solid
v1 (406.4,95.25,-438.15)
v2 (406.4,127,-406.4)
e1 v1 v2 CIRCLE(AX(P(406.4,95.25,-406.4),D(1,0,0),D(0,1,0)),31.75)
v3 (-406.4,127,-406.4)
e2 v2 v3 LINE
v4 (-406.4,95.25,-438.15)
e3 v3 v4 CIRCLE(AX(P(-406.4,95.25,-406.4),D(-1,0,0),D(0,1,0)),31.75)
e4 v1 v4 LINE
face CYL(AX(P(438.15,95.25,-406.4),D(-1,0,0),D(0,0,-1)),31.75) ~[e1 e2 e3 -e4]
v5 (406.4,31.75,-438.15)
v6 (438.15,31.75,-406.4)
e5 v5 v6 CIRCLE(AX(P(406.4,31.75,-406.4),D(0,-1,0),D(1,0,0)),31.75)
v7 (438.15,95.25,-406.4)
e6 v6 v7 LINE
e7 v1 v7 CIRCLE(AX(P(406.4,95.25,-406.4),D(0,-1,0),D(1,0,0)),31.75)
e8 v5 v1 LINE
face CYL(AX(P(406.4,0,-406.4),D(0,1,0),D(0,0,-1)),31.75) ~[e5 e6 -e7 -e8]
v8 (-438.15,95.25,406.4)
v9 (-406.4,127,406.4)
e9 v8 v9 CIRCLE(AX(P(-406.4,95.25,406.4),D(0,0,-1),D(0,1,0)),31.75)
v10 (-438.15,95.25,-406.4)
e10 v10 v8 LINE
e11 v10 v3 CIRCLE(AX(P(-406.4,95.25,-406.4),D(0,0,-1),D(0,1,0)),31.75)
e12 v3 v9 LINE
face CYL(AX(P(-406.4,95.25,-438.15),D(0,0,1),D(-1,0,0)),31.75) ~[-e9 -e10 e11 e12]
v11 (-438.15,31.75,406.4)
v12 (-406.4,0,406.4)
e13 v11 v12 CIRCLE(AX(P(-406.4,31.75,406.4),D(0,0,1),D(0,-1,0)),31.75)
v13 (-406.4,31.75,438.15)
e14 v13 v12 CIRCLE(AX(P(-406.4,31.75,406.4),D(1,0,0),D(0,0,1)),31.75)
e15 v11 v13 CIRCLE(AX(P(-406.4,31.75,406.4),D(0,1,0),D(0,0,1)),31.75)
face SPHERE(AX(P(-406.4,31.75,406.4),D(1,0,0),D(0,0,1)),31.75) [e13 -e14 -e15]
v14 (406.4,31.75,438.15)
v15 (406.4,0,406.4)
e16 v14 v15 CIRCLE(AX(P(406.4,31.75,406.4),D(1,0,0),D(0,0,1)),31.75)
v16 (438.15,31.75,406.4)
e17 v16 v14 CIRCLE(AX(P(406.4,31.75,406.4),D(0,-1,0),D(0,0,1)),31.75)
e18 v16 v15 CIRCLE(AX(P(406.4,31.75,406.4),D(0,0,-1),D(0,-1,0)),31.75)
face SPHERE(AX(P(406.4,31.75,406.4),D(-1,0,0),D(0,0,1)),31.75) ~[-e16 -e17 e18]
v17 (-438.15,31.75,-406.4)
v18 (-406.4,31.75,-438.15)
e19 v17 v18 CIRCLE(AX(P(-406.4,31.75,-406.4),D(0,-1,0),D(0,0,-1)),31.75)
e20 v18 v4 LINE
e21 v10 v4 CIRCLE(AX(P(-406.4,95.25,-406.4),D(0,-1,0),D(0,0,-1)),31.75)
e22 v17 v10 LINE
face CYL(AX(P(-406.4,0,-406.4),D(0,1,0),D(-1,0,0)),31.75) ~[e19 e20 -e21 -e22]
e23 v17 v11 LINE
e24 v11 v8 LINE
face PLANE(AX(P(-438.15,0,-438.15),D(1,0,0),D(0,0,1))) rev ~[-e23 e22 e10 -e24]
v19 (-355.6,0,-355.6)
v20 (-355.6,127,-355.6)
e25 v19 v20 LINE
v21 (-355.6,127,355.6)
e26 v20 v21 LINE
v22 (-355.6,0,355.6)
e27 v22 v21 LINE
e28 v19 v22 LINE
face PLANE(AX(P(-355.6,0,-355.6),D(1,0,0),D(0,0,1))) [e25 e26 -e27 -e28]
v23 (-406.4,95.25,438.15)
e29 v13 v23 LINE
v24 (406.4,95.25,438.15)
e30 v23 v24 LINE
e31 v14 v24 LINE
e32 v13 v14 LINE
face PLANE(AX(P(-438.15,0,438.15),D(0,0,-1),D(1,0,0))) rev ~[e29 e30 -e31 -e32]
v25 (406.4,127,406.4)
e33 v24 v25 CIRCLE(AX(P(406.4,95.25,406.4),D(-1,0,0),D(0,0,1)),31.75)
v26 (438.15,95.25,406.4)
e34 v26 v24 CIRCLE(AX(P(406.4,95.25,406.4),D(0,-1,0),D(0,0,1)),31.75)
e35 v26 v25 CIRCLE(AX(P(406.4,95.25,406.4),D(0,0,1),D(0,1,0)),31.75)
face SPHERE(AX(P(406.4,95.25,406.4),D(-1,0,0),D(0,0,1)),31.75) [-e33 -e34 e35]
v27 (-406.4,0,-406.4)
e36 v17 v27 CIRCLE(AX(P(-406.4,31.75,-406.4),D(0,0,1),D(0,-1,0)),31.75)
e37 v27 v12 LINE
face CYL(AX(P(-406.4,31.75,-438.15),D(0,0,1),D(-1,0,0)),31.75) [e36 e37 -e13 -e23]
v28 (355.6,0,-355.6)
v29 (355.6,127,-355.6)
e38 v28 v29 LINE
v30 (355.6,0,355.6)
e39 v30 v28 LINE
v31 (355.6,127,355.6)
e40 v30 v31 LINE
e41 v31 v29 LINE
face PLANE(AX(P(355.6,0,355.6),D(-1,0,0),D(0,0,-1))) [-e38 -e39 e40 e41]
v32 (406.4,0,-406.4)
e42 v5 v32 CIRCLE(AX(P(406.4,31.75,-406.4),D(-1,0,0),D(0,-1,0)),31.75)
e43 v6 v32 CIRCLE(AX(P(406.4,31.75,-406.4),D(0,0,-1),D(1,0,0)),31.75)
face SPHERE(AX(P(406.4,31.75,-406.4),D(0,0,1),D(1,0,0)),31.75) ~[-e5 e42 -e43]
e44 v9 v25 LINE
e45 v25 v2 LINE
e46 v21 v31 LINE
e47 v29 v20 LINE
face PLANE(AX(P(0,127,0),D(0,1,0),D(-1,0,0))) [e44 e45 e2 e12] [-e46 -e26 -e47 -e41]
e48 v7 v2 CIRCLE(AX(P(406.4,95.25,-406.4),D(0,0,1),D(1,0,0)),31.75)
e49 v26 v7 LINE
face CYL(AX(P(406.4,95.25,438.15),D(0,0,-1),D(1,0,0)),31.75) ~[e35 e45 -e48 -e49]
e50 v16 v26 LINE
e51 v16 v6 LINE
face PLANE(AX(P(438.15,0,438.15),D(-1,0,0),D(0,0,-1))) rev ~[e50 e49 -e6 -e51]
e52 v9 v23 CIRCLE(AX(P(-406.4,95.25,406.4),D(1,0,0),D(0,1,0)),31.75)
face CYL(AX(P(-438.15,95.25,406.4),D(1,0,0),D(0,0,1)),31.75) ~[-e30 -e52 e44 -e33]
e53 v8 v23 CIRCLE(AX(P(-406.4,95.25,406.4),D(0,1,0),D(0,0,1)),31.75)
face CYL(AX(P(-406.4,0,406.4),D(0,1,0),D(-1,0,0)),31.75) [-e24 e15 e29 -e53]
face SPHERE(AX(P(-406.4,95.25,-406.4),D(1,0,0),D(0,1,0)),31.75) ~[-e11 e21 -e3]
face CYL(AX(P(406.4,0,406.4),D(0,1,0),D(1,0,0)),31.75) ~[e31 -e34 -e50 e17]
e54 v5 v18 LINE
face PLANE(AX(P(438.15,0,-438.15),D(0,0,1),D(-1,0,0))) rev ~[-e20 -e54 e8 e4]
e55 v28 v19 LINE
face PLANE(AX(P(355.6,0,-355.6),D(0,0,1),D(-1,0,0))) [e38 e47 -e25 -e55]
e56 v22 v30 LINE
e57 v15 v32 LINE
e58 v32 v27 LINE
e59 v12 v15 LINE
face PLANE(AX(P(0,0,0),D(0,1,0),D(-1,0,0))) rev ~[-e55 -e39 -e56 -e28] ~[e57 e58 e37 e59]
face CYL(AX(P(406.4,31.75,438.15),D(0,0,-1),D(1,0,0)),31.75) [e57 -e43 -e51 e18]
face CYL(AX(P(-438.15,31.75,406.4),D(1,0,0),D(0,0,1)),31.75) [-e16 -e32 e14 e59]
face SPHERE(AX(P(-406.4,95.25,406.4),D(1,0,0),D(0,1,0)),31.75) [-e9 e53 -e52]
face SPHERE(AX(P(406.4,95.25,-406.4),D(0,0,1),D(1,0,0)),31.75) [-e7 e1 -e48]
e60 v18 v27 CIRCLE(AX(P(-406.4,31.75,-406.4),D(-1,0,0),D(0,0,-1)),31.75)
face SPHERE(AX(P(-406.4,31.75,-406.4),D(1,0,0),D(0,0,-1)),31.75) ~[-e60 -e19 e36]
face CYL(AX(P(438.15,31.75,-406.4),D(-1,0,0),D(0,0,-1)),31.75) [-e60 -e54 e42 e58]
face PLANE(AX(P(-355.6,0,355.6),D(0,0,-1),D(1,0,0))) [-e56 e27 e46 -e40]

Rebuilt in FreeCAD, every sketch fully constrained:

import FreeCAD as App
import Part
import Sketcher

V = App.Vector
Q = App.Units.Quantity


def edges_at(feature, points):
    """Names of the edges that pass closest to the given points."""
    edges = feature.Shape.Edges
    near = lambda p: min(range(len(edges)), key=lambda i: edges[i].distToShape(Part.Vertex(*p))[0])
    return sorted({f"Edge{near(p) + 1}" for p in points})

doc = App.newDocument("Part")
params = doc.addObject("Spreadsheet::Sheet", "Params")
for row, (alias, value) in enumerate([
    ("sketch1_width", "28 in"),
    ("pad1_length", "5 in"),
    ("fillet_radius", "1.25 in"),
], start=1):
    params.set(f"A{row}", alias)
    params.set(f"B{row}", "=" + value)
    params.setAlias(f"B{row}", alias)

body = doc.addObject("PartDesign::Body", "Body")

# Sketch on XZ plane
sketch1 = body.newObject("Sketcher::SketchObject", "Sketch")
sketch1.AttachmentSupport = (doc.getObject("XZ_Plane"), [""])
sketch1.MapMode = "FlatFace"
sketch1.addGeometry(Part.LineSegment(V(-438, -438, 0), V(-438, 438, 0)), False)
sketch1.addGeometry(Part.LineSegment(V(-438, 438, 0), V(438, 438, 0)), False)
sketch1.addGeometry(Part.LineSegment(V(438, 438, 0), V(438, -438, 0)), False)
sketch1.addGeometry(Part.LineSegment(V(438, -438, 0), V(-438, -438, 0)), False)
sketch1.addGeometry(Part.LineSegment(V(356, 356, 0), V(-356, 356, 0)), False)
sketch1.addGeometry(Part.LineSegment(V(-356, 356, 0), V(-356, -356, 0)), False)
sketch1.addGeometry(Part.LineSegment(V(-356, -356, 0), V(356, -356, 0)), False)
sketch1.addGeometry(Part.LineSegment(V(356, -356, 0), V(356, 356, 0)), False)
sketch1.addConstraint(Sketcher.Constraint("Coincident", 0, 2, 1, 1))
sketch1.addConstraint(Sketcher.Constraint("Coincident", 1, 2, 2, 1))
sketch1.addConstraint(Sketcher.Constraint("Coincident", 2, 2, 3, 1))
sketch1.addConstraint(Sketcher.Constraint("Coincident", 3, 2, 0, 1))
sketch1.addConstraint(Sketcher.Constraint("Coincident", 4, 2, 5, 1))
sketch1.addConstraint(Sketcher.Constraint("Coincident", 5, 2, 6, 1))
sketch1.addConstraint(Sketcher.Constraint("Coincident", 6, 2, 7, 1))
sketch1.addConstraint(Sketcher.Constraint("Coincident", 7, 2, 4, 1))
sketch1.addConstraint(Sketcher.Constraint("Vertical", 0))
sketch1.addConstraint(Sketcher.Constraint("Horizontal", 1))
sketch1.addConstraint(Sketcher.Constraint("Vertical", 2))
sketch1.addConstraint(Sketcher.Constraint("Horizontal", 3))
sketch1.addConstraint(Sketcher.Constraint("Horizontal", 4))
sketch1.addConstraint(Sketcher.Constraint("Vertical", 5))
sketch1.addConstraint(Sketcher.Constraint("Horizontal", 6))
sketch1.addConstraint(Sketcher.Constraint("Vertical", 7))
sketch1.addConstraint(Sketcher.Constraint("Symmetric", 0, 2, 2, 2, -1, 1))
sketch1.addConstraint(Sketcher.Constraint("Symmetric", 4, 2, 6, 2, -1, 1))
sketch1.addConstraint(Sketcher.Constraint("Equal", 3, 0))
sketch1.addConstraint(Sketcher.Constraint("Equal", 6, 5))
sketch1.addConstraint(Sketcher.Constraint("DistanceX", 4, 2, 4, 1, Q("28 in")))
sketch1.addConstraint(Sketcher.Constraint("DistanceX", 0, 2, 4, 2, Q("3.25 in")))
sketch1.setExpression("Constraints[20]", "Params.sketch1_width")
pad1 = body.newObject("PartDesign::Pad", "Pad")
pad1.Profile = sketch1
pad1.setExpression("Length", "Params.pad1_length")
pad1.Reversed = True
doc.recompute()

fillet = body.newObject("PartDesign::Fillet", "Fillet")
fillet.Base = (pad1, edges_at(pad1, [
    (0, 127, 438.15),
    (0, 0, 438.15),
    (438.15, 63.5, 438.15),
    (438.15, 127, 0),
    (438.15, 0, 0),
    (438.15, 63.5, -438.15),
    (0, 127, -438.15),
    (-438.15, 127, 0),
    (-438.15, 63.5, 438.15),
    (0, 0, -438.15),
    (-438.15, 63.5, -438.15),
    (-438.15, 0, 0),
]))
fillet.setExpression("Radius", "Params.fillet_radius")

doc.recompute()
